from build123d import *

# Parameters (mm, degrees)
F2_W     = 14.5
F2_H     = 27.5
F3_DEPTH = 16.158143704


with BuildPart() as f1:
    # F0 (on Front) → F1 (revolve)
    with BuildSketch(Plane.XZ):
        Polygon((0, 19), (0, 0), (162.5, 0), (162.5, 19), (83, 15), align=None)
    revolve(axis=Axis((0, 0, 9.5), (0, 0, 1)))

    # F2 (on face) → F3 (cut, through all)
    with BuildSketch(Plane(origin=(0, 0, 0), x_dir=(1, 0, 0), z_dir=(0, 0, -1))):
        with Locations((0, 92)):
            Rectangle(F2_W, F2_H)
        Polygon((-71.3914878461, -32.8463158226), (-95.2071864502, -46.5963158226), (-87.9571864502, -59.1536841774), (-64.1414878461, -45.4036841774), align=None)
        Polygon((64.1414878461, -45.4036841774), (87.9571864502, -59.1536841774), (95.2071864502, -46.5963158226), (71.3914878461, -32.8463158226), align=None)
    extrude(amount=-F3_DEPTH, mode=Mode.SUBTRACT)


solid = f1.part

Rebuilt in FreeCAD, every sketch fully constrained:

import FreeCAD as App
import Part
import Sketcher
Q = App.Units.Quantity


def add_polygon(sketch, points):
    """Adds a closed chain of lines whose ends are joined by coincident constraints."""
    first, n = sketch.GeometryCount, len(points)
    for a, b in zip(points, points[1:] + points[:1]):
        sketch.addGeometry(Part.LineSegment(App.Vector(*a, 0), App.Vector(*b, 0)), False)
    for i in range(n):
        sketch.addConstraint(Sketcher.Constraint("Coincident", first + i, 2, first + (i + 1) % n, 1))

doc = App.newDocument("Part")
body = doc.addObject("PartDesign::Body", "Body")

# Sketch on XZ plane
sketch1 = doc.addObject("Sketcher::SketchObject", "Sketch")
body.addObject(sketch1)
sketch1.AttachmentSupport = (doc.XZ_Plane, [""])
sketch1.MapMode = "FlatFace"
add_polygon(sketch1, [(0, 19), (0, 0), (162, 0), (162, 19), (83, 15)])  # lines 0-4
sketch1.addConstraint([
    Sketcher.Constraint("Vertical", 0),
    Sketcher.Constraint("Horizontal", 1),
    Sketcher.Constraint("Vertical", 2),
    Sketcher.Constraint("Coincident", 0, 2, -1, 1),
    Sketcher.Constraint("Horizontal", 2, 2, 4, 2),
    Sketcher.Constraint("DistanceY", 0, 2, 0, 1, Q("19 mm")),
    Sketcher.Constraint("DistanceX", 1, 1, 1, 2, Q("162.5 mm")),
    Sketcher.Constraint("DistanceX", -1, 1, 3, 2, Q("83 mm")),
    Sketcher.Constraint("DistanceY", -1, 1, 3, 2, Q("15 mm")),
])
revolution = doc.addObject("PartDesign::Revolution", "Revolution")
body.addObject(revolution)
revolution.Profile = sketch1
revolution.ReferenceAxis = (sketch1, ["V_Axis"])
revolution.Angle = 360

# Sketch on XY plane
sketch2 = doc.addObject("Sketcher::SketchObject", "Sketch001")
body.addObject(sketch2)
sketch2.AttachmentSupport = (doc.XY_Plane, [""])
sketch2.MapMode = "FlatFace"
add_polygon(sketch2, [(-7, -106), (-7, -78), (7, -78), (7, -106)])  # lines 0-3
add_polygon(sketch2, [(-71, 33), (-95, 47), (-88, 59), (-64, 45)])  # lines 4-7
add_polygon(sketch2, [(64, 45), (88, 59), (95, 47), (71, 33)])  # lines 8-11
sketch2.addConstraint([
    Sketcher.Constraint("Vertical", 0),
    Sketcher.Constraint("Horizontal", 1),
    Sketcher.Constraint("Vertical", 2),
    Sketcher.Constraint("Horizontal", 3),
    Sketcher.Constraint("Symmetric", 5, 2, 8, 2, -2),
    Sketcher.Constraint("Symmetric", 4, 2, 9, 2, -2),
    Sketcher.Constraint("Symmetric", 7, 2, 10, 2, -2),
    Sketcher.Constraint("Symmetric", 6, 2, 11, 2, -2),
    Sketcher.Constraint("Perpendicular", 4, 5),
    Sketcher.Constraint("Perpendicular", 5, 6),
    Sketcher.Constraint("Perpendicular", 6, 7),
    Sketcher.Constraint("Angle", 4, Q("150 deg")),
    Sketcher.Constraint("DistanceX", 1, 1, 1, 2, Q("14.5 mm")),
    Sketcher.Constraint("DistanceY", 0, 1, 0, 2, Q("27.5 mm")),
    Sketcher.Constraint("Distance", 4, Q("27.5 mm")),
    Sketcher.Constraint("Distance", 5, Q("14.5 mm")),
    Sketcher.Constraint("DistanceX", 0, 2, -1, 1, Q("7.25 mm")),
    Sketcher.Constraint("DistanceY", 0, 2, -1, 1, Q("78.25 mm")),
    Sketcher.Constraint("DistanceX", 4, 2, -1, 1, Q("95.207186 mm")),
    Sketcher.Constraint("DistanceY", -1, 1, 4, 2, Q("46.596316 mm")),
])
pocket1 = doc.addObject("PartDesign::Pocket", "Pocket")
body.addObject(pocket1)
pocket1.Profile = sketch2
pocket1.Type = "ThroughAll"
pocket1.Reversed = True

doc.recompute()
